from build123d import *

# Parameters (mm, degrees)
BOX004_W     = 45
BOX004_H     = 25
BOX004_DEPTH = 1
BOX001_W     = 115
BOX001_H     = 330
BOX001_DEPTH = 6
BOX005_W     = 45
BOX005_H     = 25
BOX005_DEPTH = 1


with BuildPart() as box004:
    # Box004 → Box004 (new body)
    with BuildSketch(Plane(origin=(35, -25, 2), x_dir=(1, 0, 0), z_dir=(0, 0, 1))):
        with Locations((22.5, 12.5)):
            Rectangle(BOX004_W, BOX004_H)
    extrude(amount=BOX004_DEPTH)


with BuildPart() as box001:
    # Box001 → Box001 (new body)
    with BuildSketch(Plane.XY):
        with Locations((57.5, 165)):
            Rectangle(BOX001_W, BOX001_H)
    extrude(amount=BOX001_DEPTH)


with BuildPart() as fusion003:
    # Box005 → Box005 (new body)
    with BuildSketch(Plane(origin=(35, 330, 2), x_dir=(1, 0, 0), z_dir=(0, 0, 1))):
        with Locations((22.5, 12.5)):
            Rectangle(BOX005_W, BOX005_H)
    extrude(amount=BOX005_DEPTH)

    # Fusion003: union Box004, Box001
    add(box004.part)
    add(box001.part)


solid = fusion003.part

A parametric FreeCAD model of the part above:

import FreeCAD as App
import Part
import Sketcher
from FreeCAD import Vector


def add_polygon(sketch, points):
    """Adds a closed chain of lines whose ends are joined by coincident constraints."""
    first, n = sketch.GeometryCount, len(points)
    for a, b in zip(points, points[1:] + points[:1]):
        sketch.addGeometry(Part.LineSegment(App.Vector(*a, 0), App.Vector(*b, 0)), False)
    for i in range(n):
        sketch.addConstraint(Sketcher.Constraint("Coincident", first + i, 2, first + (i + 1) % n, 1))

doc = App.newDocument("Part")
params = doc.addObject("Spreadsheet::Sheet", "Params")
for row, (alias, value) in enumerate([
    ("sketch1_width", "45 mm"),
    ("sketch1_height", "25 mm"),
    ("pad1_length", "1 mm"),
    ("sketch2_width", "115 mm"),
    ("sketch2_height", "330 mm"),
    ("pad2_length", "6 mm"),
    ("sketch3_width", "45 mm"),
    ("sketch3_height", "25 mm"),
    ("pad3_length", "1 mm"),
], start=1):
    params.set(f"A{row}", alias)
    params.set(f"B{row}", "=" + value)
    params.setAlias(f"B{row}", alias)

body = doc.addObject("PartDesign::Body", "Body")

# Sketch on XY plane
sketch1 = body.newObject("Sketcher::SketchObject", "Sketch")
sketch1.AttachmentSupport = (doc.getObject("XY_Plane"), [""])
sketch1.MapMode = "FlatFace"
sketch1.AttachmentOffset = App.Placement(Vector(0, 0, 2), App.Rotation())
add_polygon(sketch1, [(35, 0), (35, -25), (80, -25), (80, 0)])  # lines 0-3
sketch1.addConstraint([
    Sketcher.Constraint("Vertical", 0),
    Sketcher.Constraint("Horizontal", 1),
    Sketcher.Constraint("Vertical", 2),
    Sketcher.Constraint("Horizontal", 3),
    Sketcher.Constraint("PointOnObject", 2, 2, -1),
    Sketcher.Constraint("DistanceX", 1, 1, 1, 2, 45.0),
    Sketcher.Constraint("DistanceY", 0, 2, 0, 1, 25.0),
    Sketcher.Constraint("DistanceX", -1, 1, 0, 2, 35.0),
])
sketch1.setExpression("Constraints[9]", "Params.sketch1_width")
sketch1.setExpression("Constraints[10]", "Params.sketch1_height")
pad1 = body.newObject("PartDesign::Pad", "Pad")
pad1.Profile = sketch1
pad1.setExpression("Length", "Params.pad1_length")
body2 = doc.addObject("PartDesign::Body", "Body001")

# Sketch on XY plane
sketch2 = body2.newObject("Sketcher::SketchObject", "Sketch001")
sketch2.AttachmentSupport = (doc.getObject("XY_Plane001"), [""])
sketch2.MapMode = "FlatFace"
add_polygon(sketch2, [(0, 330), (0, 0), (115, 0), (115, 330)])  # lines 0-3
sketch2.addConstraint([
    Sketcher.Constraint("Vertical", 0),
    Sketcher.Constraint("Horizontal", 1),
    Sketcher.Constraint("Vertical", 2),
    Sketcher.Constraint("Horizontal", 3),
    Sketcher.Constraint("Coincident", 0, 2, -1, 1),
    Sketcher.Constraint("DistanceX", 1, 1, 1, 2, 115.0),
    Sketcher.Constraint("DistanceY", 0, 2, 0, 1, 330.0),
])
sketch2.setExpression("Constraints[9]", "Params.sketch2_width")
sketch2.setExpression("Constraints[10]", "Params.sketch2_height")
pad2 = body2.newObject("PartDesign::Pad", "Pad001")
pad2.Profile = sketch2
pad2.setExpression("Length", "Params.pad2_length")
body3 = doc.addObject("PartDesign::Body", "Body002")
body3.AllowCompound = True

# Sketch on XY plane
sketch3 = body3.newObject("Sketcher::SketchObject", "Sketch002")
sketch3.AttachmentSupport = (doc.getObject("XY_Plane002"), [""])
sketch3.MapMode = "FlatFace"
sketch3.AttachmentOffset = App.Placement(Vector(0, 0, 2), App.Rotation())
add_polygon(sketch3, [(35, 355), (35, 330), (80, 330), (80, 355)])  # lines 0-3
sketch3.addConstraint([
    Sketcher.Constraint("Vertical", 0),
    Sketcher.Constraint("Horizontal", 1),
    Sketcher.Constraint("Vertical", 2),
    Sketcher.Constraint("Horizontal", 3),
    Sketcher.Constraint("DistanceX", 1, 1, 1, 2, 45.0),
    Sketcher.Constraint("DistanceY", 0, 2, 0, 1, 25.0),
    Sketcher.Constraint("DistanceX", -1, 1, 0, 2, 35.0),
    Sketcher.Constraint("DistanceY", -1, 1, 0, 2, 330.0),
])
sketch3.setExpression("Constraints[8]", "Params.sketch3_width")
sketch3.setExpression("Constraints[9]", "Params.sketch3_height")
pad3 = body3.newObject("PartDesign::Pad", "Pad002")
pad3.Profile = sketch3
pad3.setExpression("Length", "Params.pad3_length")
doc.recompute()

boolean = body3.newObject("PartDesign::Boolean", "Boolean")
boolean.Type = "Fuse"
boolean.addObjects([body])
doc.recompute()

boolean2 = body3.newObject("PartDesign::Boolean", "Boolean001")
boolean2.Type = "Fuse"
boolean2.addObjects([body2])

doc.recompute()
